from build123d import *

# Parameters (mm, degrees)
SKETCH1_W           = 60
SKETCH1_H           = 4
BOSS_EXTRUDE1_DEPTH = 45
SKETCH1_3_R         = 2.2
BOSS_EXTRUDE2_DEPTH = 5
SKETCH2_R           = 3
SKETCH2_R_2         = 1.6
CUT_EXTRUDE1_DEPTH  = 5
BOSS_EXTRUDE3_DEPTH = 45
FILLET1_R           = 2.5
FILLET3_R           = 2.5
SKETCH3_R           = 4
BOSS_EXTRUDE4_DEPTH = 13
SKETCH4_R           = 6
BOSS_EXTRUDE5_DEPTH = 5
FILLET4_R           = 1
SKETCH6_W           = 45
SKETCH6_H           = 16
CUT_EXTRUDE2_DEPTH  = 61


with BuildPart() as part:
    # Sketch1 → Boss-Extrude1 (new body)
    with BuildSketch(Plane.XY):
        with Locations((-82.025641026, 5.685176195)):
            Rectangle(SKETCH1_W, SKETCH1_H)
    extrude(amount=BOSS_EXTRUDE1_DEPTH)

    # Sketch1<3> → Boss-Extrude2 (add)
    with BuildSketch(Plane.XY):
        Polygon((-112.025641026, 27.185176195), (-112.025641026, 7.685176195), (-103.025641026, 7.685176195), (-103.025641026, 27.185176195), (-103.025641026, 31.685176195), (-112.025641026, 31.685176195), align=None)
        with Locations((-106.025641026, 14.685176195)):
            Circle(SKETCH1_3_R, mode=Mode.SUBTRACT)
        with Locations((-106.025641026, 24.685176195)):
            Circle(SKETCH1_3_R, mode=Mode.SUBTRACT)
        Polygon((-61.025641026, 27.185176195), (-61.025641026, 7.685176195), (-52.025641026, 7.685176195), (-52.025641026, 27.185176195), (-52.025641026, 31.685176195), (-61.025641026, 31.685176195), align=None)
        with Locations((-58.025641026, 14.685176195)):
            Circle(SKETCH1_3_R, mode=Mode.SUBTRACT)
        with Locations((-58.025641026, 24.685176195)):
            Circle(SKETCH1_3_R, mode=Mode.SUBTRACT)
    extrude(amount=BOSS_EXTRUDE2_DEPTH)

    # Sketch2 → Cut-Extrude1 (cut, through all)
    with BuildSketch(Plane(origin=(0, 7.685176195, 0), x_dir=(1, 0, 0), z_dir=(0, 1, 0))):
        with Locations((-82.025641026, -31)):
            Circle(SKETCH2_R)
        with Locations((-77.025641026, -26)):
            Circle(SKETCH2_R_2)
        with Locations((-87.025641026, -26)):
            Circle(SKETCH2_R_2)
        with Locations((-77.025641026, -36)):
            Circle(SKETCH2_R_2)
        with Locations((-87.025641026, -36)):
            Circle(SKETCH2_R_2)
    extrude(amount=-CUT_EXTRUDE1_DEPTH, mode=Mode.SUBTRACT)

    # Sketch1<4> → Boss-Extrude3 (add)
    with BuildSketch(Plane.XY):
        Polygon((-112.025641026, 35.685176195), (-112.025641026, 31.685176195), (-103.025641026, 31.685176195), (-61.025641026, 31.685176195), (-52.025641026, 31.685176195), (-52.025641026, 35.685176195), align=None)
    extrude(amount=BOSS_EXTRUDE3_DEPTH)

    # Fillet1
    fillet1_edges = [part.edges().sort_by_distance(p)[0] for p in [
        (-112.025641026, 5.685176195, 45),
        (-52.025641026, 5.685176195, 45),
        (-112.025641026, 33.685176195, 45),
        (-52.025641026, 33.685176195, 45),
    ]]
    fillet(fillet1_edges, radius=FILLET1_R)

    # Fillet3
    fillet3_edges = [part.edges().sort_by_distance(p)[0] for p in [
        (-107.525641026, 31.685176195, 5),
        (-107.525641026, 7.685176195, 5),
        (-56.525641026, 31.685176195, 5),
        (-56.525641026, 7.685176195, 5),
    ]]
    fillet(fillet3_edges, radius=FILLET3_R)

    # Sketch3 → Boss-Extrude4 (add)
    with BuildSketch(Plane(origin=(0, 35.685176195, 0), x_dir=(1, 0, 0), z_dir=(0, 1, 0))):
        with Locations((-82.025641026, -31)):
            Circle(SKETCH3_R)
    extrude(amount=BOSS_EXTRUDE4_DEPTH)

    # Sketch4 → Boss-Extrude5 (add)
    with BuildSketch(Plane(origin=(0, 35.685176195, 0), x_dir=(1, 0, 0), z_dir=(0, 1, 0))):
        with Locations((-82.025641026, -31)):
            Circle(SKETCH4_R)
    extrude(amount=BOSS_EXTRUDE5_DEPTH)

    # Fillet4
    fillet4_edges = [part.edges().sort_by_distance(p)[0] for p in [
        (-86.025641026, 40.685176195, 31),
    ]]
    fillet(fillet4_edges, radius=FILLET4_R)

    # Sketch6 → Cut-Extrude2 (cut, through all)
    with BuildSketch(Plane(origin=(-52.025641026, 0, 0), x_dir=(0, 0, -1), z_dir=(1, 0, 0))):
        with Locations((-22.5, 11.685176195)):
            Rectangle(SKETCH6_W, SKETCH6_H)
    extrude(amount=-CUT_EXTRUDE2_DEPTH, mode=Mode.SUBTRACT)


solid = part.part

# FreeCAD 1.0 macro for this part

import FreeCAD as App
import Part
import Sketcher
from FreeCAD import Vector
Q = App.Units.Quantity


def edges_at(feature, points):
    """Names of the edges that pass closest to the given points."""
    edges = feature.Shape.Edges
    near = lambda p: min(range(len(edges)), key=lambda i: edges[i].distToShape(Part.Vertex(*p))[0])
    return sorted({f"Edge{near(p) + 1}" for p in points})


def add_polygon(sketch, points):
    """Adds a closed chain of lines whose ends are joined by coincident constraints."""
    first, n = sketch.GeometryCount, len(points)
    for a, b in zip(points, points[1:] + points[:1]):
        sketch.addGeometry(Part.LineSegment(App.Vector(*a, 0), App.Vector(*b, 0)), False)
    for i in range(n):
        sketch.addConstraint(Sketcher.Constraint("Coincident", first + i, 2, first + (i + 1) % n, 1))

doc = App.newDocument("Part")
body = doc.addObject("PartDesign::Body", "Body")

sketch1 = body.newObject("Sketcher::SketchObject", "Sketch")
sketch1.AttachmentSupport = (doc.getObject("XY_Plane"), [""])
sketch1.MapMode = "FlatFace"
add_polygon(sketch1, [(-112, 7.7), (-112, 3.7), (-52, 3.7), (-52, 7.7)])
sketch1.addConstraint(Sketcher.Constraint("Vertical", 0))
sketch1.addConstraint(Sketcher.Constraint("Horizontal", 1))
sketch1.addConstraint(Sketcher.Constraint("Vertical", 2))
sketch1.addConstraint(Sketcher.Constraint("Horizontal", 3))
sketch1.addConstraint(Sketcher.Constraint("DistanceX", 1, 1, 1, 2, Q("60 mm")))
sketch1.addConstraint(Sketcher.Constraint("DistanceY", 0, 2, 0, 1, Q("4 mm")))
sketch1.addConstraint(Sketcher.Constraint("DistanceX", 0, 2, -1, 1, Q("112.025641 mm")))
sketch1.addConstraint(Sketcher.Constraint("DistanceY", -1, 1, 0, 2, Q("3.685176 mm")))
pad1 = body.newObject("PartDesign::Pad", "Pad")
pad1.Profile = sketch1
pad1.Length = 45

sketch2 = body.newObject("Sketcher::SketchObject", "Sketch001")
sketch2.AttachmentSupport = (doc.getObject("XY_Plane"), [""])
sketch2.MapMode = "FlatFace"
add_polygon(sketch2, [(-112, 7.7), (-103, 7.7), (-103, 31.7), (-112, 31.7)])
sketch2.addGeometry(Part.Circle(Vector(-106, 14.7, 0), Vector(0, 0, 1), 2.2), False)
sketch2.addGeometry(Part.Circle(Vector(-106, 24.7, 0), Vector(0, 0, 1), 2.2), False)
add_polygon(sketch2, [(-61, 7.7), (-52, 7.7), (-52, 31.7), (-61, 31.7)])
sketch2.addGeometry(Part.Circle(Vector(-58, 14.7, 0), Vector(0, 0, 1), 2.2), False)
sketch2.addGeometry(Part.Circle(Vector(-58, 24.7, 0), Vector(0, 0, 1), 2.2), False)
sketch2.addConstraint(Sketcher.Constraint("Horizontal", 0))
sketch2.addConstraint(Sketcher.Constraint("Vertical", 1))
sketch2.addConstraint(Sketcher.Constraint("Horizontal", 2))
sketch2.addConstraint(Sketcher.Constraint("Vertical", 3))
sketch2.addConstraint(Sketcher.Constraint("Horizontal", 6))
sketch2.addConstraint(Sketcher.Constraint("Vertical", 7))
sketch2.addConstraint(Sketcher.Constraint("Horizontal", 8))
sketch2.addConstraint(Sketcher.Constraint("Vertical", 9))
sketch2.addConstraint(Sketcher.Constraint("Equal", 4, 5))
sketch2.addConstraint(Sketcher.Constraint("Equal", 5, 10))
sketch2.addConstraint(Sketcher.Constraint("Equal", 10, 11))
sketch2.addConstraint(Sketcher.Constraint("Horizontal", 4, 3, 10, 3))
sketch2.addConstraint(Sketcher.Constraint("Horizontal", 5, 3, 11, 3))
sketch2.addConstraint(Sketcher.Constraint("Horizontal", 3, 2, 6, 2))
sketch2.addConstraint(Sketcher.Constraint("Horizontal", 2, 2, 7, 2))
sketch2.addConstraint(Sketcher.Constraint("Vertical", 4, 3, 5, 3))
sketch2.addConstraint(Sketcher.Constraint("Vertical", 10, 3, 11, 3))
sketch2.addConstraint(Sketcher.Constraint("Equal", 2, 6))
sketch2.addConstraint(Sketcher.Constraint("Diameter", 4, Q("4.4 mm")))
sketch2.addConstraint(Sketcher.Constraint("DistanceX", 0, 1, 0, 2, Q("9 mm")))
sketch2.addConstraint(Sketcher.Constraint("DistanceY", 1, 1, 1, 2, Q("24 mm")))
sketch2.addConstraint(Sketcher.Constraint("DistanceY", 4, 3, 5, 3, Q("10 mm")))
sketch2.addConstraint(Sketcher.Constraint("DistanceX", 4, 3, 10, 3, Q("48 mm")))
sketch2.addConstraint(Sketcher.Constraint("DistanceX", 4, 3, 0, 2, Q("3 mm")))
sketch2.addConstraint(Sketcher.Constraint("DistanceY", 0, 2, 4, 3, Q("7 mm")))
sketch2.addConstraint(Sketcher.Constraint("DistanceX", 10, 3, 6, 2, Q("6 mm")))
sketch2.addConstraint(Sketcher.Constraint("DistanceX", 4, 3, -1, 1, Q("106.025641 mm")))
sketch2.addConstraint(Sketcher.Constraint("DistanceY", -1, 1, 4, 3, Q("14.685176 mm")))
pad2 = body.newObject("PartDesign::Pad", "Pad001")
pad2.Profile = sketch2
pad2.Length = 5

sketch3 = body.newObject("Sketcher::SketchObject", "Sketch002")
sketch3.AttachmentSupport = (doc.getObject("XZ_Plane"), [""])
sketch3.MapMode = "FlatFace"
sketch3.AttachmentOffset = App.Placement(Vector(0, 0, -7.685176), App.Rotation())
sketch3.addGeometry(Part.Circle(Vector(-82, 31, 0), Vector(0, 0, 1), 3), False)
sketch3.addGeometry(Part.Circle(Vector(-77, 26, 0), Vector(0, 0, 1), 1.6), False)
sketch3.addGeometry(Part.Circle(Vector(-87, 26, 0), Vector(0, 0, 1), 1.6), False)
sketch3.addGeometry(Part.Circle(Vector(-77, 36, 0), Vector(0, 0, 1), 1.6), False)
sketch3.addGeometry(Part.Circle(Vector(-87, 36, 0), Vector(0, 0, 1), 1.6), False)
sketch3.addConstraint(Sketcher.Constraint("Equal", 1, 2))
sketch3.addConstraint(Sketcher.Constraint("Equal", 2, 3))
sketch3.addConstraint(Sketcher.Constraint("Equal", 3, 4))
sketch3.addConstraint(Sketcher.Constraint("Horizontal", 1, 3, 2, 3))
sketch3.addConstraint(Sketcher.Constraint("Horizontal", 3, 3, 4, 3))
sketch3.addConstraint(Sketcher.Constraint("Vertical", 1, 3, 3, 3))
sketch3.addConstraint(Sketcher.Constraint("Vertical", 2, 3, 4, 3))
sketch3.addConstraint(Sketcher.Constraint("Diameter", 0, Q("6 mm")))
sketch3.addConstraint(Sketcher.Constraint("Diameter", 1, Q("3.2 mm")))
sketch3.addConstraint(Sketcher.Constraint("DistanceY", -1, 1, 0, 3, Q("31 mm")))
sketch3.addConstraint(Sketcher.Constraint("DistanceY", -1, 1, 1, 3, Q("26 mm")))
sketch3.addConstraint(Sketcher.Constraint("DistanceY", -1, 1, 3, 3, Q("36 mm")))
sketch3.addConstraint(Sketcher.Constraint("DistanceX", 0, 3, 1, 3, Q("5 mm")))
sketch3.addConstraint(Sketcher.Constraint("DistanceX", 2, 3, 0, 3, Q("5 mm")))
sketch3.addConstraint(Sketcher.Constraint("DistanceX", 0, 3, -1, 1, Q("82.025641 mm")))
pocket1 = body.newObject("PartDesign::Pocket", "Pocket")
pocket1.Profile = sketch3
pocket1.Type = "ThroughAll"
pocket1.Reversed = True

sketch4 = body.newObject("Sketcher::SketchObject", "Sketch003")
sketch4.AttachmentSupport = (doc.getObject("XY_Plane"), [""])
sketch4.MapMode = "FlatFace"
add_polygon(sketch4, [(-112, 35.7), (-112, 31.7), (-52, 31.7), (-52, 35.7)])
sketch4.addConstraint(Sketcher.Constraint("Vertical", 0))
sketch4.addConstraint(Sketcher.Constraint("Horizontal", 1))
sketch4.addConstraint(Sketcher.Constraint("Vertical", 2))
sketch4.addConstraint(Sketcher.Constraint("Horizontal", 3))
sketch4.addConstraint(Sketcher.Constraint("DistanceX", 1, 1, 1, 2, Q("60 mm")))
sketch4.addConstraint(Sketcher.Constraint("DistanceY", 0, 2, 0, 1, Q("4 mm")))
sketch4.addConstraint(Sketcher.Constraint("DistanceX", 0, 2, -1, 1, Q("112.025641 mm")))
sketch4.addConstraint(Sketcher.Constraint("DistanceY", -1, 1, 0, 2, Q("31.685176 mm")))
pad3 = body.newObject("PartDesign::Pad", "Pad002")
pad3.Profile = sketch4
pad3.Length = 45
doc.recompute()

fillet = body.newObject("PartDesign::Fillet", "Fillet")
fillet.Base = (pad3, edges_at(pad3, [
    (-112.026, 5.685, 45),
    (-52.026, 5.685, 45),
    (-112.026, 33.685, 45),
    (-52.026, 33.685, 45),
]))
fillet.Radius = 2.5
doc.recompute()

fillet2 = body.newObject("PartDesign::Fillet", "Fillet001")
fillet2.Base = (fillet, edges_at(fillet, [
    (-107.526, 31.685, 5),
    (-107.526, 7.685, 5),
    (-56.526, 31.685, 5),
    (-56.526, 7.685, 5),
]))
fillet2.Radius = 2.5

sketch5 = body.newObject("Sketcher::SketchObject", "Sketch004")
sketch5.AttachmentSupport = (doc.getObject("XZ_Plane"), [""])
sketch5.MapMode = "FlatFace"
sketch5.AttachmentOffset = App.Placement(Vector(0, 0, -35.685176), App.Rotation())
sketch5.addGeometry(Part.Circle(Vector(-82, 31, 0), Vector(0, 0, 1), 4), False)
sketch5.addConstraint(Sketcher.Constraint("Diameter", 0, Q("8 mm")))
sketch5.addConstraint(Sketcher.Constraint("DistanceY", -1, 1, 0, 3, Q("31 mm")))
sketch5.addConstraint(Sketcher.Constraint("DistanceX", 0, 3, -1, 1, Q("82.025641 mm")))
pad4 = body.newObject("PartDesign::Pad", "Pad003")
pad4.Profile = sketch5
pad4.Length = 13
pad4.Reversed = True

sketch6 = body.newObject("Sketcher::SketchObject", "Sketch005")
sketch6.AttachmentSupport = (doc.getObject("XZ_Plane"), [""])
sketch6.MapMode = "FlatFace"
sketch6.AttachmentOffset = App.Placement(Vector(0, 0, -35.685176), App.Rotation())
sketch6.addGeometry(Part.Circle(Vector(-82, 31, 0), Vector(0, 0, 1), 6), False)
sketch6.addConstraint(Sketcher.Constraint("Diameter", 0, Q("12 mm")))
sketch6.addConstraint(Sketcher.Constraint("DistanceY", -1, 1, 0, 3, Q("31 mm")))
sketch6.addConstraint(Sketcher.Constraint("DistanceX", 0, 3, -1, 1, Q("82.025641 mm")))
pad5 = body.newObject("PartDesign::Pad", "Pad004")
pad5.Profile = sketch6
pad5.Length = 5
pad5.Reversed = True
doc.recompute()

fillet3 = body.newObject("PartDesign::Fillet", "Fillet002")
fillet3.Base = (pad5, edges_at(pad5, [(-86.026, 40.685, 31)]))
fillet3.Radius = 1

sketch7 = body.newObject("Sketcher::SketchObject", "Sketch006")
sketch7.AttachmentSupport = (doc.getObject("YZ_Plane"), [""])
sketch7.MapMode = "FlatFace"
sketch7.AttachmentOffset = App.Placement(Vector(0, 0, -52.025641), App.Rotation())
add_polygon(sketch7, [(20, 45), (4, 45), (4, 0), (20, 0)])
sketch7.addConstraint(Sketcher.Constraint("Horizontal", 0))
sketch7.addConstraint(Sketcher.Constraint("Vertical", 1))
sketch7.addConstraint(Sketcher.Constraint("Horizontal", 2))
sketch7.addConstraint(Sketcher.Constraint("Vertical", 3))
sketch7.addConstraint(Sketcher.Constraint("PointOnObject", 1, 2, -1))
sketch7.addConstraint(Sketcher.Constraint("DistanceX", 0, 2, 0, 1, Q("16 mm")))
sketch7.addConstraint(Sketcher.Constraint("DistanceY", 1, 2, 1, 1, Q("45 mm")))
sketch7.addConstraint(Sketcher.Constraint("DistanceX", -1, 1, 0, 2, Q("3.685176 mm")))
pocket2 = body.newObject("PartDesign::Pocket", "Pocket001")
pocket2.Profile = sketch7
pocket2.Type = "ThroughAll"

doc.recompute()
